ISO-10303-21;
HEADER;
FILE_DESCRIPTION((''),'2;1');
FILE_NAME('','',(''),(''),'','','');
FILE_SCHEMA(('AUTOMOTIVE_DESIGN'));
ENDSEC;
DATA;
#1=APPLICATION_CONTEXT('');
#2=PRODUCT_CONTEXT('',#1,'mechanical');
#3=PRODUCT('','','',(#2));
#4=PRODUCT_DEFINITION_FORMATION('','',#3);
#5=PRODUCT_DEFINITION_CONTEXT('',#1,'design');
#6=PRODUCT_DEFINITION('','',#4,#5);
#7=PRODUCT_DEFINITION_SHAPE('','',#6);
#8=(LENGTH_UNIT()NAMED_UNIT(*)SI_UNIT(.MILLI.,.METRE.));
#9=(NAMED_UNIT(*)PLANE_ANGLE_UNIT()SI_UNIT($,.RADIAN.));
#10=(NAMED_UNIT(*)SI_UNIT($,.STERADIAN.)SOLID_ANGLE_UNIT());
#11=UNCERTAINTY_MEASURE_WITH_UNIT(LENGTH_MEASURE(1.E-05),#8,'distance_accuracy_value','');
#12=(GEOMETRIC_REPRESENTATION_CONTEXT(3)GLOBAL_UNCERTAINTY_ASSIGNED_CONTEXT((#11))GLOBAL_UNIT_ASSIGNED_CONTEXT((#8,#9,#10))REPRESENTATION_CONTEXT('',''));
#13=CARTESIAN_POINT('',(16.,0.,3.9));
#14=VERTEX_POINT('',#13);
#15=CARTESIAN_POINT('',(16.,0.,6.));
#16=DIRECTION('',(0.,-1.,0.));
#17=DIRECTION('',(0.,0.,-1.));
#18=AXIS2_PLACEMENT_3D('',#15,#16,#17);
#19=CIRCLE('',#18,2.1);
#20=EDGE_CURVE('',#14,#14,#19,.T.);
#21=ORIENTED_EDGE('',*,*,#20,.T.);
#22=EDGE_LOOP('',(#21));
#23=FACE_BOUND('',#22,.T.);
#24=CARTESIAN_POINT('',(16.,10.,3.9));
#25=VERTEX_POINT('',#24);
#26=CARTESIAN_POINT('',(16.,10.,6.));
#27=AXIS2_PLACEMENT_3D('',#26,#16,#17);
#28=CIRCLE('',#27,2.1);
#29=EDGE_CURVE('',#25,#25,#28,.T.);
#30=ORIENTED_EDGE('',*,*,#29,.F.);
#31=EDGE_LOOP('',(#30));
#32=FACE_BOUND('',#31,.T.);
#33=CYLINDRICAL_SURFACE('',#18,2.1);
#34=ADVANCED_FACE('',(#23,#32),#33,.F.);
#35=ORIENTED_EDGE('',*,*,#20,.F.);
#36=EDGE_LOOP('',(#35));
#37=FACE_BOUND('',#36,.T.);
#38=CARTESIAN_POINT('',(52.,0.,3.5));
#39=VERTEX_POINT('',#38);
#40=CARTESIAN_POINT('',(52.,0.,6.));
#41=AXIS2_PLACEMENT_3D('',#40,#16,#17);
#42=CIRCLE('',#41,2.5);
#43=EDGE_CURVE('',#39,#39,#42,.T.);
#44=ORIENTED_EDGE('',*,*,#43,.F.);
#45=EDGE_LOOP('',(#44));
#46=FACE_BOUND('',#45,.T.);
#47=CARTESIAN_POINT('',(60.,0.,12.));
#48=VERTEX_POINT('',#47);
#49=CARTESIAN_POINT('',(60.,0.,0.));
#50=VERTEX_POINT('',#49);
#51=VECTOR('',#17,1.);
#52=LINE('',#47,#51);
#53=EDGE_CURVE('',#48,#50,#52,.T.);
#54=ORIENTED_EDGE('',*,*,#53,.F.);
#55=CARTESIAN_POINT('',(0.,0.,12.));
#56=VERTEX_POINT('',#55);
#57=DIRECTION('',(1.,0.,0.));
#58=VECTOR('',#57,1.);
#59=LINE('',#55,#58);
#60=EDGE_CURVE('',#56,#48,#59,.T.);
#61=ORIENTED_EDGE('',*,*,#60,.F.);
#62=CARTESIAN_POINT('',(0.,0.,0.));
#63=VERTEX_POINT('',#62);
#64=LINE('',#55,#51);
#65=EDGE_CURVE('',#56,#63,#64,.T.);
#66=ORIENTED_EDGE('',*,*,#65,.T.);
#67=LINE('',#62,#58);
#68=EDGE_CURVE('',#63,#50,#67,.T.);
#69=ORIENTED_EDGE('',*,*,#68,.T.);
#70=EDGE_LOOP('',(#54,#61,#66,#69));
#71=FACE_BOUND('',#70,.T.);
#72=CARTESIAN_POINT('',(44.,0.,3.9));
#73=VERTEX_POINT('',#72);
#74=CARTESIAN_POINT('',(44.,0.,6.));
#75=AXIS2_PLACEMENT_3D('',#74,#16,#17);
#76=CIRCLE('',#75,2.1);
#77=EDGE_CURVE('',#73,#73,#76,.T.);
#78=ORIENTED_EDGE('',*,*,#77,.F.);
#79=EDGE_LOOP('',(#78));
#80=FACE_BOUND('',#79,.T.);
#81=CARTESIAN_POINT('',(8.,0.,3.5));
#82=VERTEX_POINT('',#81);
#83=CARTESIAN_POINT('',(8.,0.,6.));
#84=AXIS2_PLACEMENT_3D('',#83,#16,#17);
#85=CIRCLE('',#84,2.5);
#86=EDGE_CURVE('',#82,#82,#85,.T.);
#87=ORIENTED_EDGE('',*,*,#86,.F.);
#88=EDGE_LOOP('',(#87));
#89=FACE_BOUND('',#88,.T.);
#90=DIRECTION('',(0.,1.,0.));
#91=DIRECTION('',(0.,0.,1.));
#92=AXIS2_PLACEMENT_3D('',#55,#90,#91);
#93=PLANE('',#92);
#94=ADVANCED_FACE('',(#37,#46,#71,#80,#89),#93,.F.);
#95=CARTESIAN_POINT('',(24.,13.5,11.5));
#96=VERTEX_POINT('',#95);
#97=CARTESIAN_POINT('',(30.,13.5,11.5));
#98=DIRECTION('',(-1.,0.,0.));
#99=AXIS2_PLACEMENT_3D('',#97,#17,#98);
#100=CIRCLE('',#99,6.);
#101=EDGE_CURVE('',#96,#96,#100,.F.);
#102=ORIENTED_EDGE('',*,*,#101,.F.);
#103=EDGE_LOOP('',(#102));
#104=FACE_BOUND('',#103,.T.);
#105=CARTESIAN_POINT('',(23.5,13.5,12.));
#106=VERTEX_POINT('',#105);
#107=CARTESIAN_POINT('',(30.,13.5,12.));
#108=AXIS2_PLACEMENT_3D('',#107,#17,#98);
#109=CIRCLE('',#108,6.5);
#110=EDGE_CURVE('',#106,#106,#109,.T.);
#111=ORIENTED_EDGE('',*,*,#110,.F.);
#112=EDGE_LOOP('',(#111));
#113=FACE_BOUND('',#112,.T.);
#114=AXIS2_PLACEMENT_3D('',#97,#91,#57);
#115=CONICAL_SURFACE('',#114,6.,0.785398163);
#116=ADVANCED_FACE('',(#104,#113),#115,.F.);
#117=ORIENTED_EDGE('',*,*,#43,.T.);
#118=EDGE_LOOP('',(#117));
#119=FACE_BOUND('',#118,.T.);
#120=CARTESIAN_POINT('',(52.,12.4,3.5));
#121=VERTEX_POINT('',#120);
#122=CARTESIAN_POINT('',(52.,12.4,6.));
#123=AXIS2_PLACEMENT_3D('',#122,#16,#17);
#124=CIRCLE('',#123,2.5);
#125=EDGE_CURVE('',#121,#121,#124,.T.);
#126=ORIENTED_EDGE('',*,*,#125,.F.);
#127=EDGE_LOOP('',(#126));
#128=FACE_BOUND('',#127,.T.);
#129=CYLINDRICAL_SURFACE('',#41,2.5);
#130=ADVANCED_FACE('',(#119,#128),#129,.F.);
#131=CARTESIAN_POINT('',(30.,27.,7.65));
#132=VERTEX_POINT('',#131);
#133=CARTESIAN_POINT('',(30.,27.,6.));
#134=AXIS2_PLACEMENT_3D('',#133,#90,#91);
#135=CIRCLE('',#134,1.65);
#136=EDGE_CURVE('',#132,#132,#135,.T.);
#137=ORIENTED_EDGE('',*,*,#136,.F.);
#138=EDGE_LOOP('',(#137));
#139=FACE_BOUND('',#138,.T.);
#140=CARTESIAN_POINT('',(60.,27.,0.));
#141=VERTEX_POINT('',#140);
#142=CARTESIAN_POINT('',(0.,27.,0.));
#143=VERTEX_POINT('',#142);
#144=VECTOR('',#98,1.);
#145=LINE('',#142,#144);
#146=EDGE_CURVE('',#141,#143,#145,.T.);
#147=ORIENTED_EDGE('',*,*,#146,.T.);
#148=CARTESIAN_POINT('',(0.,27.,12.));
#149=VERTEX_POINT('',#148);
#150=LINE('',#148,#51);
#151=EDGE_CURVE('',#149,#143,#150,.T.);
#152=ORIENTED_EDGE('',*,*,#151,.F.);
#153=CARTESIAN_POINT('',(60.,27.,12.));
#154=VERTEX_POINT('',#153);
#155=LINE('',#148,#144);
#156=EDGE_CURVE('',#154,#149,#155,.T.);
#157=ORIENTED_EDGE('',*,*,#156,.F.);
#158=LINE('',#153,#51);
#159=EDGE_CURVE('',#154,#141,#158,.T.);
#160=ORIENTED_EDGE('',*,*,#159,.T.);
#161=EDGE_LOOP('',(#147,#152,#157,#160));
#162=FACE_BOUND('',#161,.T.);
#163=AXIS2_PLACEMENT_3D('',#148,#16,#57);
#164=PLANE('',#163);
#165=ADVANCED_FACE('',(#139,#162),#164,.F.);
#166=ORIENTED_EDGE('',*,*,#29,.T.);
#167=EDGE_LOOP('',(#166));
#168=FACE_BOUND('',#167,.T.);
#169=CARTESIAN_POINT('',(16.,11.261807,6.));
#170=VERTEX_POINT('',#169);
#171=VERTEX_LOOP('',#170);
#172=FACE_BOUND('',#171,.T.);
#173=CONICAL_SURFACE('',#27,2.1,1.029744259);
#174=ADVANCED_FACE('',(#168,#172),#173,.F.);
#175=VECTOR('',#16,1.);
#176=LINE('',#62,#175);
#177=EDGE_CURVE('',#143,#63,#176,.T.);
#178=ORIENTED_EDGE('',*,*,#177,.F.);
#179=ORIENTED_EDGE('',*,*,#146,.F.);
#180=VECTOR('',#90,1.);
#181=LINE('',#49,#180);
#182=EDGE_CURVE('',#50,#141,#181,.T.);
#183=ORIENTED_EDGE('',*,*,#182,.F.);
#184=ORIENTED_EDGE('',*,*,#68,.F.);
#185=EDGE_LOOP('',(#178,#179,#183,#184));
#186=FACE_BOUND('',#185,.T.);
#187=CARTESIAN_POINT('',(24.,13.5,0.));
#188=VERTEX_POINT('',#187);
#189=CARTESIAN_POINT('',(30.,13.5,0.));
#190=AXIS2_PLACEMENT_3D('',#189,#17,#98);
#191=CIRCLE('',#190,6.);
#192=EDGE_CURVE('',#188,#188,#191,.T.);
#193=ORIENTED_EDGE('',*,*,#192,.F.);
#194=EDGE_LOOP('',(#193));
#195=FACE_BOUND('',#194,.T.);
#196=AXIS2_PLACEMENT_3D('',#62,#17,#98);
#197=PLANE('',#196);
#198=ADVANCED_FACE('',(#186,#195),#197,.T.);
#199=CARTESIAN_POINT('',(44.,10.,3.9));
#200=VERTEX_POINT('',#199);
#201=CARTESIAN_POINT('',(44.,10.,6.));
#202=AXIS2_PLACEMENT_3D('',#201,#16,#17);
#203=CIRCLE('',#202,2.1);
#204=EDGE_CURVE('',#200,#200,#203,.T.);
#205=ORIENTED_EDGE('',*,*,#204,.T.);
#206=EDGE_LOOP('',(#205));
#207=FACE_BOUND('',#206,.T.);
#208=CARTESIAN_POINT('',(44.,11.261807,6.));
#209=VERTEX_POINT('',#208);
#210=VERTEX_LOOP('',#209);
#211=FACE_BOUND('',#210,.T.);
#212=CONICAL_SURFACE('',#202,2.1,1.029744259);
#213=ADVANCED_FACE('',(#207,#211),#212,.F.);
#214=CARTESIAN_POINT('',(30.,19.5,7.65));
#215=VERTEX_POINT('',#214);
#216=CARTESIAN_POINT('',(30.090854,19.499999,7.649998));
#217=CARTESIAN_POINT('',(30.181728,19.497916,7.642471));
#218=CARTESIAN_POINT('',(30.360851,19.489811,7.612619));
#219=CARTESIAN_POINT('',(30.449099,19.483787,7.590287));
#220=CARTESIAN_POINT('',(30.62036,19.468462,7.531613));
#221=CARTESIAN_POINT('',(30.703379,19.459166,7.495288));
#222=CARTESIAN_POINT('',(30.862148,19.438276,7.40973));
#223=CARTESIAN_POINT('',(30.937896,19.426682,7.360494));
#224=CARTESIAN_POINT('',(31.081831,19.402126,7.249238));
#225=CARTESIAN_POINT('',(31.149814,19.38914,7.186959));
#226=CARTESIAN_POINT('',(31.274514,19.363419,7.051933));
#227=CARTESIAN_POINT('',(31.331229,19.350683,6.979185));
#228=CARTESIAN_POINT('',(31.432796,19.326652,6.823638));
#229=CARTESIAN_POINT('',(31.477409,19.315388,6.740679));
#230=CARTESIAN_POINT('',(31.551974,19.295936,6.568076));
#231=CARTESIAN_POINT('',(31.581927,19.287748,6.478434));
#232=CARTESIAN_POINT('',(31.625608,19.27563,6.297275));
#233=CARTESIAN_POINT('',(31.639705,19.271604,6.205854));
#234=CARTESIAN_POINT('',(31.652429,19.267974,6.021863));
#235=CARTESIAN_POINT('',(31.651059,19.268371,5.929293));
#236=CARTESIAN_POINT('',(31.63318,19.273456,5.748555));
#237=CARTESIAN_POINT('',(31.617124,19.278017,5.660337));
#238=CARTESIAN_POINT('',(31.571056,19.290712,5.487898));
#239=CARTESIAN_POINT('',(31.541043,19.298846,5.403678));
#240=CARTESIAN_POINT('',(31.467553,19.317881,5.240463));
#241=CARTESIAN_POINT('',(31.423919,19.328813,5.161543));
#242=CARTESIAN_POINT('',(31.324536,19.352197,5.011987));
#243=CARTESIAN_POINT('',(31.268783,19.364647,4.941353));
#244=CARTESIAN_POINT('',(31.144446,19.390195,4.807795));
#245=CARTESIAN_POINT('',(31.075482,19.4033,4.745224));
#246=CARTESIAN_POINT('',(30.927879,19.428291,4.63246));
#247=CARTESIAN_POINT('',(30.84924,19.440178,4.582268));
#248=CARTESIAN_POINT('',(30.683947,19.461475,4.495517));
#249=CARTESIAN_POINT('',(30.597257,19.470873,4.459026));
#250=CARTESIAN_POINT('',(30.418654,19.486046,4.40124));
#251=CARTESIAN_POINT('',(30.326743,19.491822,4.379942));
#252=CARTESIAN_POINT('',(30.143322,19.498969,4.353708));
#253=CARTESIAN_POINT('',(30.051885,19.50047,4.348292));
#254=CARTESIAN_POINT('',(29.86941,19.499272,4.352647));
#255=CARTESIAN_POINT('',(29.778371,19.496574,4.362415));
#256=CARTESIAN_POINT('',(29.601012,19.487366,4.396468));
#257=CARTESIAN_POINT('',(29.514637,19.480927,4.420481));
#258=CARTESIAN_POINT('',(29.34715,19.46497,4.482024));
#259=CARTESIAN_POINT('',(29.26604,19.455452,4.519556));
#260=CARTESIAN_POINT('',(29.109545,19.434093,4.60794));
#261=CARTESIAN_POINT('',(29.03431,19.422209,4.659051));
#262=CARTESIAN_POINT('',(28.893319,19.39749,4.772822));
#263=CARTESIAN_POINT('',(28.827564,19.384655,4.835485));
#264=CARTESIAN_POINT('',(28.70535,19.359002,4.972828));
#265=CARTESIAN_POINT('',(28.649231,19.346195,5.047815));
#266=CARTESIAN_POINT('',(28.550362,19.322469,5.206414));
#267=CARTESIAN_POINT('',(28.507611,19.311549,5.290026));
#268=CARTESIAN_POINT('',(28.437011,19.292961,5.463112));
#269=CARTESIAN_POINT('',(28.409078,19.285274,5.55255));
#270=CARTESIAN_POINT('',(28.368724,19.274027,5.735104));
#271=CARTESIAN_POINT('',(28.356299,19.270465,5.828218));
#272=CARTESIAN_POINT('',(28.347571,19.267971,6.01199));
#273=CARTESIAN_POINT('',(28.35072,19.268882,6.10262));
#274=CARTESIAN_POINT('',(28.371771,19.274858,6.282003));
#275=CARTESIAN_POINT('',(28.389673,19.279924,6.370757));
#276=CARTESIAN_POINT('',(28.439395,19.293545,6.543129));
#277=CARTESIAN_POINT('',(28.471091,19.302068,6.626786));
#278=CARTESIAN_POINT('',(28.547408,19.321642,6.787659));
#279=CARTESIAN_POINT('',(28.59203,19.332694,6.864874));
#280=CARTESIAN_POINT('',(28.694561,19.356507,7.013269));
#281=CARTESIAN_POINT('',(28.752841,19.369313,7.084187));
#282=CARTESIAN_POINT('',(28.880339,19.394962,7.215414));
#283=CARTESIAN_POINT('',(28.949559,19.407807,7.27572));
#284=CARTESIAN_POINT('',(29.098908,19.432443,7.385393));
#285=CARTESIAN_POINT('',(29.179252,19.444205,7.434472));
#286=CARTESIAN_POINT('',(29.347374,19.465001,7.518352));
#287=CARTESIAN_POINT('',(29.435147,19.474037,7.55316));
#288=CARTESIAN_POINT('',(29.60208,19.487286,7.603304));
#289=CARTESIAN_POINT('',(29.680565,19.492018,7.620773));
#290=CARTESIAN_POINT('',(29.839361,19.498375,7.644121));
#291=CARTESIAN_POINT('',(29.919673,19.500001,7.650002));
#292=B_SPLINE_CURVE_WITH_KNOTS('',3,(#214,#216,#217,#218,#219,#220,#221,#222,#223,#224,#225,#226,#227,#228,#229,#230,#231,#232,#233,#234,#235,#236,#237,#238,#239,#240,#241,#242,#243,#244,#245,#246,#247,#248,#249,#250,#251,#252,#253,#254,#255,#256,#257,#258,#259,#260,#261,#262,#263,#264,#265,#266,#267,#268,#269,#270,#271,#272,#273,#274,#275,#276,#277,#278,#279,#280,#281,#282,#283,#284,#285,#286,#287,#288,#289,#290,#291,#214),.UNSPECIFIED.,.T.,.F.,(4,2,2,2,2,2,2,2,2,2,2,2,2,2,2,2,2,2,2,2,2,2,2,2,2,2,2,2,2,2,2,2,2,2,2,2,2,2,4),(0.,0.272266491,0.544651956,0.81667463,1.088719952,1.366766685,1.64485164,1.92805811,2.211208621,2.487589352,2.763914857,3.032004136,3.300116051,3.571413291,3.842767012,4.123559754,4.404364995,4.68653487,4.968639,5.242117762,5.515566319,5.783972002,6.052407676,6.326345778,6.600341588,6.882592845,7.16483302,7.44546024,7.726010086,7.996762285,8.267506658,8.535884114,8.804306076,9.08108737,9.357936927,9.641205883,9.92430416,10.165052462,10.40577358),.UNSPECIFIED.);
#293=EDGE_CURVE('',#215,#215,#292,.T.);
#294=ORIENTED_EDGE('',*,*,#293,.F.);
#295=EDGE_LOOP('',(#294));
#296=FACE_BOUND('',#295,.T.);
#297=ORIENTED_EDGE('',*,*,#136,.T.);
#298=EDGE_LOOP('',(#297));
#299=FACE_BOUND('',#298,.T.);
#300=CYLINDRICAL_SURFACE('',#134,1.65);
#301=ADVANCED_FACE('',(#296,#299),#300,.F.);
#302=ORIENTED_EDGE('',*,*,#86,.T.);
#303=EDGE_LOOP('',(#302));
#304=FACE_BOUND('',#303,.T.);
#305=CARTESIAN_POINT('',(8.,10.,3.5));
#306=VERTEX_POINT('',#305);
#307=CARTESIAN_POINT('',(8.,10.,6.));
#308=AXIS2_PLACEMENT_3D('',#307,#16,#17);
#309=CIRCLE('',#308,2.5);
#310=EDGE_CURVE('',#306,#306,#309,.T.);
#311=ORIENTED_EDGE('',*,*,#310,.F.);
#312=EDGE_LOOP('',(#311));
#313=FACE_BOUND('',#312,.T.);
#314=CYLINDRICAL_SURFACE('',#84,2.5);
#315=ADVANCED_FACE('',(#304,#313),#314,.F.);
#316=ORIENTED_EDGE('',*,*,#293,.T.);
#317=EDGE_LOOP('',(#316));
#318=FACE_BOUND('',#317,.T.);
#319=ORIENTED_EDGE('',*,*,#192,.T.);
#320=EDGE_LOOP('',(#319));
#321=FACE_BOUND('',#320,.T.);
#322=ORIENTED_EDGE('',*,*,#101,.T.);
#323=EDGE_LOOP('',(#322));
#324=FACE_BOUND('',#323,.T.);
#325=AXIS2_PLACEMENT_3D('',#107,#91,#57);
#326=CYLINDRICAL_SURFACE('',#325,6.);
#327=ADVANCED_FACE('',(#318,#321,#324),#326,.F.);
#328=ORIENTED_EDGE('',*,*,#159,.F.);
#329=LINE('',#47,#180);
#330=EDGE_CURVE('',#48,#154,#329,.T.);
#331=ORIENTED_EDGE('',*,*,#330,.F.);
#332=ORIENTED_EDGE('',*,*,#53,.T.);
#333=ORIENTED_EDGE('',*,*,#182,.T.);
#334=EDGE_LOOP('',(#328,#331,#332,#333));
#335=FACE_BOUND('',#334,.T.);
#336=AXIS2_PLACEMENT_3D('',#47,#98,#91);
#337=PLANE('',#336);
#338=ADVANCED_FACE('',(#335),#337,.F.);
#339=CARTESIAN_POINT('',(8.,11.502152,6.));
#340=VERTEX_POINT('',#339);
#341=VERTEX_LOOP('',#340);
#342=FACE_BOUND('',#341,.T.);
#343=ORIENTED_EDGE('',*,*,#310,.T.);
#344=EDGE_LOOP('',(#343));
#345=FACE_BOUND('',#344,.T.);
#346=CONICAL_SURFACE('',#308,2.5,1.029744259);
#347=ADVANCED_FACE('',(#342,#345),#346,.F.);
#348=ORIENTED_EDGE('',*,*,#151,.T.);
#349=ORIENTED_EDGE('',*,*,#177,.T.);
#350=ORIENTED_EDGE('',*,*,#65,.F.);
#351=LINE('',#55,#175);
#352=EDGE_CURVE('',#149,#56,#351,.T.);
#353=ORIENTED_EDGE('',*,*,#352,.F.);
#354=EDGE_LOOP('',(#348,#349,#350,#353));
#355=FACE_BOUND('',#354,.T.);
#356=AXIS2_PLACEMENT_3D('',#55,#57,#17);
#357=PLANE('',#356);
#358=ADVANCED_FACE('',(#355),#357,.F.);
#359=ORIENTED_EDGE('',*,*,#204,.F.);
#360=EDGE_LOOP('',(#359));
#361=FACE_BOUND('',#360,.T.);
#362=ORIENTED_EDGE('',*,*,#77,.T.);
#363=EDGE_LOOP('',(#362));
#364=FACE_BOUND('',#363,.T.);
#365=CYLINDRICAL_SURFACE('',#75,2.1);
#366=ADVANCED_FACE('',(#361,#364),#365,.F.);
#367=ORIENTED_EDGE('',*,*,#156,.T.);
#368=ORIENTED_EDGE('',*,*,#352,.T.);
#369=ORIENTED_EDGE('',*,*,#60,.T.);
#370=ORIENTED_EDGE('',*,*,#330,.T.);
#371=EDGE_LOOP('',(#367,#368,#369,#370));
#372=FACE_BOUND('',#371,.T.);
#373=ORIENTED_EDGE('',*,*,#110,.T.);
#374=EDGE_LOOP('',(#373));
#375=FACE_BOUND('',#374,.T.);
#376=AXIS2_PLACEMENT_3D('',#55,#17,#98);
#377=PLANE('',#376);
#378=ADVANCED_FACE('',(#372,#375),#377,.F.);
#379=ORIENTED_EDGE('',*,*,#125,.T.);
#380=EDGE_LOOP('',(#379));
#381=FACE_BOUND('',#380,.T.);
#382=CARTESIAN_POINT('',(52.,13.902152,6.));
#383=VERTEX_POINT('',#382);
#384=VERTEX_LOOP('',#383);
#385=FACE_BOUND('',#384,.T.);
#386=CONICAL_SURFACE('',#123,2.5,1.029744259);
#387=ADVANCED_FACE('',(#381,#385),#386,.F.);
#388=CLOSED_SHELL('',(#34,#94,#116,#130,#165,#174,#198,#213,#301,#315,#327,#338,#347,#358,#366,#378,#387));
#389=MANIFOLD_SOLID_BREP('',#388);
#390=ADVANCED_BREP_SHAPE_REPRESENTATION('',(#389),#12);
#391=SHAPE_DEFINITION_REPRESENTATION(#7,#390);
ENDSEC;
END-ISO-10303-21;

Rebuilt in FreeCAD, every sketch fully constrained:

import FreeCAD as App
import Part
import Sketcher

V = App.Vector


def edges_at(feature, points):
    """Names of the edges that pass closest to the given points."""
    edges = feature.Shape.Edges
    near = lambda p: min(range(len(edges)), key=lambda i: edges[i].distToShape(Part.Vertex(*p))[0])
    return sorted({f"Edge{near(p) + 1}" for p in points})


def add_polygon(sketch, points):
    """Adds a closed chain of lines whose ends are joined by coincident constraints."""
    first, n = sketch.GeometryCount, len(points)
    for a, b in zip(points, points[1:] + points[:1]):
        sketch.addGeometry(Part.LineSegment(App.Vector(*a, 0), App.Vector(*b, 0)), False)
    for i in range(n):
        sketch.addConstraint(Sketcher.Constraint("Coincident", first + i, 2, first + (i + 1) % n, 1))

doc = App.newDocument("Part")
body = doc.addObject("PartDesign::Body", "Body")

# Sketch on XY plane
sketch1 = body.newObject("Sketcher::SketchObject", "Sketch")
sketch1.AttachmentSupport = (doc.getObject("XY_Plane"), [""])
sketch1.MapMode = "FlatFace"
add_polygon(sketch1, [(0, 27), (0, 0), (60, 0), (60, 27)])  # lines 0-3
sketch1.addConstraint([
    Sketcher.Constraint("Vertical", 0),
    Sketcher.Constraint("Horizontal", 1),
    Sketcher.Constraint("Vertical", 2),
    Sketcher.Constraint("Horizontal", 3),
    Sketcher.Constraint("Coincident", 0, 2, -1, 1),
    Sketcher.Constraint("DistanceX", 1, 1, 1, 2, 60.0),
    Sketcher.Constraint("DistanceY", 0, 2, 0, 1, 27.0),
])
pad1 = body.newObject("PartDesign::Pad", "Pad")
pad1.Profile = sketch1
pad1.Length = 12

# Sketch on XY plane
sketch2 = body.newObject("Sketcher::SketchObject", "Sketch001")
sketch2.AttachmentSupport = (doc.getObject("XY_Plane"), [""])
sketch2.MapMode = "FlatFace"
sketch2.AttachmentOffset = App.Placement(V(0, 0, 12), App.Rotation())
sketch2.addGeometry(Part.Circle(V(30, 14, 0), V(0, 0, 1), 6), False)
sketch2.addConstraint([
    Sketcher.Constraint("Diameter", 0, 12.0),
    Sketcher.Constraint("DistanceX", -1, 1, 0, 3, 30.0),
    Sketcher.Constraint("DistanceY", -1, 1, 0, 3, 13.5),
])
doc.recompute()
hole = body.newObject("PartDesign::Hole", "Hole")
hole.Profile = sketch2
hole.ThreadType = "None"
hole.Diameter = 12
hole.DepthType = "Dimension"
hole.Depth = 12.4
hole.DrillPoint = "Angled"
hole.DrillPointAngle = 118

# Sketch on XZ plane
sketch3 = body.newObject("Sketcher::SketchObject", "Sketch002")
sketch3.AttachmentSupport = (doc.getObject("XZ_Plane"), [""])
sketch3.MapMode = "FlatFace"
sketch3.AttachmentOffset = App.Placement(V(0, 0, -27), App.Rotation())
sketch3.addGeometry(Part.Circle(V(30, 6, 0), V(0, 0, 1), 1.6), False)
sketch3.addConstraint([
    Sketcher.Constraint("Diameter", 0, 3.3),
    Sketcher.Constraint("DistanceX", -1, 1, 0, 3, 30.0),
    Sketcher.Constraint("DistanceY", -1, 1, 0, 3, 6.0),
])
doc.recompute()
hole2 = body.newObject("PartDesign::Hole", "Hole001")
hole2.Profile = sketch3
hole2.ThreadType = "None"
hole2.Diameter = 3.3
hole2.DepthType = "Dimension"
hole2.Depth = 10.1
hole2.DrillPoint = "Angled"
hole2.DrillPointAngle = 118
hole2.Reversed = True
doc.recompute()

chamfer = body.newObject("PartDesign::Chamfer", "Chamfer")
chamfer.Base = (hole2, edges_at(hole2, [(36, 13.5, 12)]))
chamfer.Size = 0.5

# Sketch on XZ plane
sketch4 = body.newObject("Sketcher::SketchObject", "Sketch003")
sketch4.AttachmentSupport = (doc.getObject("XZ_Plane"), [""])
sketch4.MapMode = "FlatFace"
sketch4.addGeometry(Part.Circle(V(8, 6, 0), V(0, 0, 1), 2.5), False)
sketch4.addConstraint([
    Sketcher.Constraint("Diameter", 0, 5.0),
    Sketcher.Constraint("DistanceX", -1, 1, 0, 3, 8.0),
    Sketcher.Constraint("DistanceY", -1, 1, 0, 3, 6.0),
])
doc.recompute()
hole3 = body.newObject("PartDesign::Hole", "Hole002")
hole3.Profile = sketch4
hole3.ThreadType = "None"
hole3.Diameter = 5
hole3.DepthType = "Dimension"
hole3.Depth = 10
hole3.DrillPoint = "Angled"
hole3.DrillPointAngle = 118

# Sketch on XZ plane
sketch5 = body.newObject("Sketcher::SketchObject", "Sketch004")
sketch5.AttachmentSupport = (doc.getObject("XZ_Plane"), [""])
sketch5.MapMode = "FlatFace"
sketch5.addGeometry(Part.Circle(V(16, 6, 0), V(0, 0, 1), 2.1), False)
sketch5.addConstraint([
    Sketcher.Constraint("Diameter", 0, 4.2),
    Sketcher.Constraint("DistanceX", -1, 1, 0, 3, 16.0),
    Sketcher.Constraint("DistanceY", -1, 1, 0, 3, 6.0),
])
doc.recompute()
hole4 = body.newObject("PartDesign::Hole", "Hole003")
hole4.Profile = sketch5
hole4.ThreadType = "None"
hole4.Diameter = 4.2
hole4.DepthType = "Dimension"
hole4.Depth = 10
hole4.DrillPoint = "Angled"
hole4.DrillPointAngle = 118

# Sketch on XZ plane
sketch6 = body.newObject("Sketcher::SketchObject", "Sketch005")
sketch6.AttachmentSupport = (doc.getObject("XZ_Plane"), [""])
sketch6.MapMode = "FlatFace"
sketch6.addGeometry(Part.Circle(V(44, 6, 0), V(0, 0, 1), 2.1), False)
sketch6.addConstraint([
    Sketcher.Constraint("Diameter", 0, 4.2),
    Sketcher.Constraint("DistanceX", -1, 1, 0, 3, 44.0),
    Sketcher.Constraint("DistanceY", -1, 1, 0, 3, 6.0),
])
doc.recompute()
hole5 = body.newObject("PartDesign::Hole", "Hole004")
hole5.Profile = sketch6
hole5.ThreadType = "None"
hole5.Diameter = 4.2
hole5.DepthType = "Dimension"
hole5.Depth = 10
hole5.DrillPoint = "Angled"
hole5.DrillPointAngle = 118

# Sketch on XZ plane
sketch7 = body.newObject("Sketcher::SketchObject", "Sketch006")
sketch7.AttachmentSupport = (doc.getObject("XZ_Plane"), [""])
sketch7.MapMode = "FlatFace"
sketch7.addGeometry(Part.Circle(V(52, 6, 0), V(0, 0, 1), 2.5), False)
sketch7.addConstraint([
    Sketcher.Constraint("Diameter", 0, 5.0),
    Sketcher.Constraint("DistanceX", -1, 1, 0, 3, 52.0),
    Sketcher.Constraint("DistanceY", -1, 1, 0, 3, 6.0),
])
doc.recompute()
hole6 = body.newObject("PartDesign::Hole", "Hole005")
hole6.Profile = sketch7
hole6.ThreadType = "None"
hole6.Diameter = 5
hole6.DepthType = "Dimension"
hole6.Depth = 12.4
hole6.DrillPoint = "Angled"
hole6.DrillPointAngle = 118

doc.recompute()
